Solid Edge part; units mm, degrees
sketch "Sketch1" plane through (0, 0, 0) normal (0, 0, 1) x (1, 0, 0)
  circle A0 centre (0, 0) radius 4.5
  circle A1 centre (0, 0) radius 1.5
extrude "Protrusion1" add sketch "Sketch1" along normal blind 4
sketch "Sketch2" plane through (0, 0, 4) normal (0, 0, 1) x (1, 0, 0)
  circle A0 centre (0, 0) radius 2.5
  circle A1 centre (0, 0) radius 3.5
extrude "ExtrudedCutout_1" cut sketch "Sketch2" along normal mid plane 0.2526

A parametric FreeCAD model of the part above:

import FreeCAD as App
import Part
import Sketcher
from FreeCAD import Vector
Q = App.Units.Quantity

doc = App.newDocument("Part")
body = doc.addObject("PartDesign::Body", "Body")

# Sketch on XY plane
sketch1 = body.newObject("Sketcher::SketchObject", "Sketch")
sketch1.AttachmentSupport = (doc.getObject("XY_Plane"), [""])
sketch1.MapMode = "FlatFace"
sketch1.addGeometry([
    Part.Circle(Vector(0, 0, 0), Vector(0, 0, 1), 4.5),
    Part.Circle(Vector(0, 0, 0), Vector(0, 0, 1), 1.5),
], False)
sketch1.addConstraint([
    Sketcher.Constraint("Coincident", 0, 3, -1, 1),
    Sketcher.Constraint("Coincident", 1, 3, -1, 1),
    Sketcher.Constraint("Diameter", 0, Q("9 mm")),
    Sketcher.Constraint("Diameter", 1, Q("3 mm")),
])
pad1 = body.newObject("PartDesign::Pad", "Pad")
pad1.Profile = sketch1
pad1.Length = 4

# Sketch on XY plane
sketch2 = body.newObject("Sketcher::SketchObject", "Sketch001")
sketch2.AttachmentSupport = (doc.getObject("XY_Plane"), [""])
sketch2.MapMode = "FlatFace"
sketch2.AttachmentOffset = App.Placement(Vector(0, 0, 4), App.Rotation())
sketch2.addGeometry([
    Part.Circle(Vector(0, 0, 0), Vector(0, 0, 1), 3.5),
    Part.Circle(Vector(0, 0, 0), Vector(0, 0, 1), 2.5),
], False)
sketch2.addConstraint([
    Sketcher.Constraint("Coincident", 0, 3, -1, 1),
    Sketcher.Constraint("Coincident", 1, 3, -1, 1),
    Sketcher.Constraint("Diameter", 0, Q("7 mm")),
    Sketcher.Constraint("Diameter", 1, Q("5 mm")),
])
pocket1 = body.newObject("PartDesign::Pocket", "Pocket")
pocket1.Profile = sketch2
pocket1.Length = 0.2526
pocket1.Midplane = True

doc.recompute()
